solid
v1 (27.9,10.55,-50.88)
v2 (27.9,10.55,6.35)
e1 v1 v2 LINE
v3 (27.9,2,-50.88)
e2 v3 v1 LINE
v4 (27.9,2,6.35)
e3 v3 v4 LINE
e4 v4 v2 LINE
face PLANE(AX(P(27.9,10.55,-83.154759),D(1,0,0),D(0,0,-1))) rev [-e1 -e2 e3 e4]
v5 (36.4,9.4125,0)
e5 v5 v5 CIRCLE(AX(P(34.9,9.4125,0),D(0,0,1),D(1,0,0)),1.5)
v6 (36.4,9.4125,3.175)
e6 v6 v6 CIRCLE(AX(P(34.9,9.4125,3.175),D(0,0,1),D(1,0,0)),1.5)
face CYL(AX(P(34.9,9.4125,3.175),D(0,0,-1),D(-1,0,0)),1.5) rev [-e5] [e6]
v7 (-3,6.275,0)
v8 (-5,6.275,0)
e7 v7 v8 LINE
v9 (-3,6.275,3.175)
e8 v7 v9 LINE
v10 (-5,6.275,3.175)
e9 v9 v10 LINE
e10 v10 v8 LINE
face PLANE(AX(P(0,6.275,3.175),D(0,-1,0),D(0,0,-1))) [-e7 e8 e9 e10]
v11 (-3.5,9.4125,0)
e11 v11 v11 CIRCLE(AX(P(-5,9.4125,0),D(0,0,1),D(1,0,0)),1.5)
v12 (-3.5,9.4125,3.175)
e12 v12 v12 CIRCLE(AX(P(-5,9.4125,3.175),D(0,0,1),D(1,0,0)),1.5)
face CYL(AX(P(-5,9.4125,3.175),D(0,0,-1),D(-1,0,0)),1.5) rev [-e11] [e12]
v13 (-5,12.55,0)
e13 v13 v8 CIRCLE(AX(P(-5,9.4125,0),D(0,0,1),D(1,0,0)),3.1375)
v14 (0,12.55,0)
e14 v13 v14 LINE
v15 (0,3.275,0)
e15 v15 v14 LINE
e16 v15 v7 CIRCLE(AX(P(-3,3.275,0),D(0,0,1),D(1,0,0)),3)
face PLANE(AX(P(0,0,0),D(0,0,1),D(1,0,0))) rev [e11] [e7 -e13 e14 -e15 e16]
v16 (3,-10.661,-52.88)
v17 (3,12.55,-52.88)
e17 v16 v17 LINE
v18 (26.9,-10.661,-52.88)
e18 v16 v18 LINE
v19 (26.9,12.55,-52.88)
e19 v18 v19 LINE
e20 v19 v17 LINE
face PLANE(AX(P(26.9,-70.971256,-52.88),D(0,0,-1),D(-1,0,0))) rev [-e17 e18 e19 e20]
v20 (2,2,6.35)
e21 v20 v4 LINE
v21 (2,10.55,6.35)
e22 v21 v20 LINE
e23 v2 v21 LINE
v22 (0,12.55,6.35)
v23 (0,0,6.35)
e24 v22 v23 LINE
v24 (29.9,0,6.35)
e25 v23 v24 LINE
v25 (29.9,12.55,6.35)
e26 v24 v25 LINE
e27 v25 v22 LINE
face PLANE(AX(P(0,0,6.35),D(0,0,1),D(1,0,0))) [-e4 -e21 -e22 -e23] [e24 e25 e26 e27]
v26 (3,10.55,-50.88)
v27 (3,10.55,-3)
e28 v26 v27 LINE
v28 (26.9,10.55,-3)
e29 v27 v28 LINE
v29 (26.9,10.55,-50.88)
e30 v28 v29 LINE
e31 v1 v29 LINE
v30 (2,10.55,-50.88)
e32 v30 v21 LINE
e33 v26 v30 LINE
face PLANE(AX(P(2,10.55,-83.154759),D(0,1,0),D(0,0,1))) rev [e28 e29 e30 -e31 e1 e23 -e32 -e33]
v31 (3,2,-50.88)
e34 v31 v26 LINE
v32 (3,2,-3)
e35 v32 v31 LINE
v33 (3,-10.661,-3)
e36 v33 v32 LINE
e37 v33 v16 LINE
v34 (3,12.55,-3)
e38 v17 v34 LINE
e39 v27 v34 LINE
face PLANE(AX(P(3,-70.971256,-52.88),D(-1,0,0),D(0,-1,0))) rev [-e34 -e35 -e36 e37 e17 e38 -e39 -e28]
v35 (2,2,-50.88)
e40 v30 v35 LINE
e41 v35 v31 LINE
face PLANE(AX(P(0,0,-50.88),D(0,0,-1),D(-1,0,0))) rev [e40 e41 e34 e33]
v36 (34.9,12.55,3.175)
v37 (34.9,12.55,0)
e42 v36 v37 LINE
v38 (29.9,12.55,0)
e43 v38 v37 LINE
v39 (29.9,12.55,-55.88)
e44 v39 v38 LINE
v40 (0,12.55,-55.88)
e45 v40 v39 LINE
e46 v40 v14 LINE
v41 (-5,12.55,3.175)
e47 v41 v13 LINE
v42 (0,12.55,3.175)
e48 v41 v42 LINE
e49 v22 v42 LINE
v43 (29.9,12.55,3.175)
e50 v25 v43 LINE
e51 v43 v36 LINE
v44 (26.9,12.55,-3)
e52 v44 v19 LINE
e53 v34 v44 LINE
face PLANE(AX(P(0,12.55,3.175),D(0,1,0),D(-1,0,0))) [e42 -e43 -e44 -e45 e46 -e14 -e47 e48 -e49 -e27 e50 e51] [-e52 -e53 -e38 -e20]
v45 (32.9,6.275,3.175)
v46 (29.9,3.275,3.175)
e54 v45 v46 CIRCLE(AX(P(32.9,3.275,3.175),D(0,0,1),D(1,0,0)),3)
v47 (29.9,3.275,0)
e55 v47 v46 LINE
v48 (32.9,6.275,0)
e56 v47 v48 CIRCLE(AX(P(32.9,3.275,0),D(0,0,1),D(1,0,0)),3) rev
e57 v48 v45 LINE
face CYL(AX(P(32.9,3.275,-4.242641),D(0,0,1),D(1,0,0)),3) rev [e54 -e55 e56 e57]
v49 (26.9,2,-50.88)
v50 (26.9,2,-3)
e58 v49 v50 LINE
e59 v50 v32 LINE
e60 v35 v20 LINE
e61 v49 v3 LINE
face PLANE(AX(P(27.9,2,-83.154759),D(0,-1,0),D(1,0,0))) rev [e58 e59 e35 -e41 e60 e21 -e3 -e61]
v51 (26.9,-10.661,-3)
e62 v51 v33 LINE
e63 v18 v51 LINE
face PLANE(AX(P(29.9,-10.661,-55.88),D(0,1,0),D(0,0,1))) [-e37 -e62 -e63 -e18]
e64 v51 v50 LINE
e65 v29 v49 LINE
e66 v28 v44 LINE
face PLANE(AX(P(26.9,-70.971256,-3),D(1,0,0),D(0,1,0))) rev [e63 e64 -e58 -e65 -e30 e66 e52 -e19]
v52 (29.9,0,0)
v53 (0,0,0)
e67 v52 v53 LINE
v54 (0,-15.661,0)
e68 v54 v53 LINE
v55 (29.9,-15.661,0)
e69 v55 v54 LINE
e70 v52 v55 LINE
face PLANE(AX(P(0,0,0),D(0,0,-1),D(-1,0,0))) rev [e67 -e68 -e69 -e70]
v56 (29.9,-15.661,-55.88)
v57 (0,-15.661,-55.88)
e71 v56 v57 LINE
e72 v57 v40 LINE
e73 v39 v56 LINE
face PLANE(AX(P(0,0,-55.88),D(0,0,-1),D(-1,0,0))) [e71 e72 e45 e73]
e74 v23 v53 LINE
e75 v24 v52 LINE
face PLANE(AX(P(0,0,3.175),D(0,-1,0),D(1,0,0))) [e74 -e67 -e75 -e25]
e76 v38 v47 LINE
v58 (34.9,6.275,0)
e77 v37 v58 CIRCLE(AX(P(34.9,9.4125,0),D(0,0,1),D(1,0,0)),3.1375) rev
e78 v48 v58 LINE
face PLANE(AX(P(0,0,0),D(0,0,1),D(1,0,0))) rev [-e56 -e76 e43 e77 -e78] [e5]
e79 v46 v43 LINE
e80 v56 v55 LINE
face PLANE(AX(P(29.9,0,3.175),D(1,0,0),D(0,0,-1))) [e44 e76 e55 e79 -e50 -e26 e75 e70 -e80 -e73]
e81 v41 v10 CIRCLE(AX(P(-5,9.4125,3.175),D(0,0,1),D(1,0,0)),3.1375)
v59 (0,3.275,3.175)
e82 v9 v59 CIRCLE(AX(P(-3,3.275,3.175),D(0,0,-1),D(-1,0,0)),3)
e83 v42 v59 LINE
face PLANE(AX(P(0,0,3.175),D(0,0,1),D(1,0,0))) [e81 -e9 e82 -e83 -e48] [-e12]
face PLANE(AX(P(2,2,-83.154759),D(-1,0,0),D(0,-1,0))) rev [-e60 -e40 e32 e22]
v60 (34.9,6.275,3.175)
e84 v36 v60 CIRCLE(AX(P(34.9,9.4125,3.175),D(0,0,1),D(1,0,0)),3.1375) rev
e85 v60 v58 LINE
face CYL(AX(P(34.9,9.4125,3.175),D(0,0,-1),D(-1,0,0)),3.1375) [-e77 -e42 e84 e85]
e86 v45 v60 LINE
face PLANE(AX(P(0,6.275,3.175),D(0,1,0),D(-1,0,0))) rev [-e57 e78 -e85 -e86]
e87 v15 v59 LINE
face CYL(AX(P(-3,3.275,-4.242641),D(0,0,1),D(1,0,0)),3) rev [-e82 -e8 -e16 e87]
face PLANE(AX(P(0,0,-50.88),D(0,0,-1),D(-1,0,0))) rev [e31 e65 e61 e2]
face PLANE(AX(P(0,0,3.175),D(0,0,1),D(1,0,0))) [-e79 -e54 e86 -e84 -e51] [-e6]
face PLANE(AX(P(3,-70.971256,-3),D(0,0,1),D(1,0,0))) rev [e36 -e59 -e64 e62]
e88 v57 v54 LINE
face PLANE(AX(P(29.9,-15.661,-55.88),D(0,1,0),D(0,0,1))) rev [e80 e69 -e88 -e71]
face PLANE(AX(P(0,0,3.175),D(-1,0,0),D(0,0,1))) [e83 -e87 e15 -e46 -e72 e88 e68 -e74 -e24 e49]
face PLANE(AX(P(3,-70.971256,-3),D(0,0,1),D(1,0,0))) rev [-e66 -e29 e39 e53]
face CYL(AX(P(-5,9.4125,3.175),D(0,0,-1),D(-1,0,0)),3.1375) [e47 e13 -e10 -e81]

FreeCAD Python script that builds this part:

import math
import FreeCAD as App
import Part
import Sketcher


def add_polygon(sketch, points):
    """Adds a closed chain of lines whose ends are joined by coincident constraints."""
    first, n = sketch.GeometryCount, len(points)
    for a, b in zip(points, points[1:] + points[:1]):
        sketch.addGeometry(Part.LineSegment(App.Vector(*a, 0), App.Vector(*b, 0)), False)
    for i in range(n):
        sketch.addConstraint(Sketcher.Constraint("Coincident", first + i, 2, first + (i + 1) % n, 1))

doc = App.newDocument("Part")
params = doc.addObject("Spreadsheet::Sheet", "Params")
for row, (alias, value) in enumerate([
    ("sketch1_diameter", "3 mm"),
    ("sketch1_width", "5 mm"),
    ("sketch1_width2", "29.9 mm"),
    ("pad1_length", "3.175 mm"),
    ("sketch2_width", "29.9 mm"),
    ("sketch2_height", "12.55 mm"),
    ("pad2_length", "3.175 mm"),
    ("sketch3_width", "29.9 mm"),
    ("pad3_length", "55.88 mm"),
    ("sketch4_radius", "3 mm"),
    ("pad4_length", "3.175 mm"),
    ("sketch5_width", "25.9 mm"),
    ("sketch5_height", "8.55 mm"),
    ("pocket1_length", "57.23 mm"),
    ("sketch6_width", "23.9 mm"),
    ("sketch6_height", "49.88 mm"),
    ("pocket2_length", "23.211 mm"),
], start=1):
    params.set(f"A{row}", alias)
    params.set(f"B{row}", "=" + value)
    params.setAlias(f"B{row}", alias)

body = doc.addObject("PartDesign::Body", "Body")

sketch1 = body.newObject("Sketcher::SketchObject", "Sketch")
sketch1.AttachmentSupport = (doc.getObject("XY_Plane"), [""])
sketch1.MapMode = "FlatFace"
sketch1.addGeometry(Part.LineSegment(App.Vector(0, 6.3, 0), App.Vector(0, 0, 0)), False)
sketch1.addGeometry(Part.LineSegment(App.Vector(0, 0, 0), App.Vector(29.9, 0, 0)), False)
sketch1.addGeometry(Part.LineSegment(App.Vector(29.9, 0, 0), App.Vector(29.9, 6.3, 0)), False)
sketch1.addGeometry(Part.LineSegment(App.Vector(29.9, 6.3, 0), App.Vector(34.9, 6.3, 0)), False)
sketch1.addGeometry(Part.ArcOfCircle(Part.Circle(App.Vector(34.9, 9.4, 0), App.Vector(0, 0, 1), 3.1), math.radians(-90), math.radians(90)), False)
sketch1.addGeometry(Part.LineSegment(App.Vector(34.9, 12.6, 0), App.Vector(-5, 12.6, 0)), False)
sketch1.addGeometry(Part.ArcOfCircle(Part.Circle(App.Vector(-5, 9.4, 0), App.Vector(0, 0, 1), 3.1), math.radians(90), math.radians(270)), False)
sketch1.addGeometry(Part.LineSegment(App.Vector(-5, 6.3, 0), App.Vector(0, 6.3, 0)), False)
sketch1.addGeometry(Part.Circle(App.Vector(-5, 9.4, 0), App.Vector(0, 0, 1), 1.5), False)
sketch1.addGeometry(Part.Circle(App.Vector(34.9, 9.4, 0), App.Vector(0, 0, 1), 1.5), False)
sketch1.addConstraint(Sketcher.Constraint("Coincident", 0, 2, 1, 1))
sketch1.addConstraint(Sketcher.Constraint("Coincident", 1, 2, 2, 1))
sketch1.addConstraint(Sketcher.Constraint("Coincident", 2, 2, 3, 1))
sketch1.addConstraint(Sketcher.Constraint("Tangent", 3, 2, 4, 1))
sketch1.addConstraint(Sketcher.Constraint("Tangent", 4, 2, 5, 1))
sketch1.addConstraint(Sketcher.Constraint("Tangent", 5, 2, 6, 1))
sketch1.addConstraint(Sketcher.Constraint("Tangent", 6, 2, 7, 1))
sketch1.addConstraint(Sketcher.Constraint("Coincident", 7, 2, 0, 1))
sketch1.addConstraint(Sketcher.Constraint("Vertical", 0))
sketch1.addConstraint(Sketcher.Constraint("Horizontal", 1))
sketch1.addConstraint(Sketcher.Constraint("Vertical", 2))
sketch1.addConstraint(Sketcher.Constraint("Horizontal", 3))
sketch1.addConstraint(Sketcher.Constraint("Horizontal", 5))
sketch1.addConstraint(Sketcher.Constraint("Horizontal", 7))
sketch1.addConstraint(Sketcher.Constraint("Coincident", 0, 2, -1, 1))
sketch1.addConstraint(Sketcher.Constraint("Coincident", 8, 3, 6, 3))
sketch1.addConstraint(Sketcher.Constraint("Coincident", 9, 3, 4, 3))
sketch1.addConstraint(Sketcher.Constraint("Equal", 4, 6))
sketch1.addConstraint(Sketcher.Constraint("Equal", 8, 9))
sketch1.addConstraint(Sketcher.Constraint("Equal", 3, 7))
sketch1.addConstraint(Sketcher.Constraint("Diameter", 8, 3.0))
sketch1.addConstraint(Sketcher.Constraint("DistanceX", 3, 1, 3, 2, 5.0))
sketch1.addConstraint(Sketcher.Constraint("DistanceX", 1, 1, 1, 2, 29.9))
sketch1.addConstraint(Sketcher.Constraint("Radius", 4, 3.1375))
sketch1.addConstraint(Sketcher.Constraint("DistanceY", 0, 2, 0, 1, 6.275))
sketch1.setExpression("Constraints[20]", "Params.sketch1_diameter")
sketch1.setExpression("Constraints[21]", "Params.sketch1_width")
sketch1.setExpression("Constraints[22]", "Params.sketch1_width2")
pad1 = body.newObject("PartDesign::Pad", "Pad")
pad1.Profile = sketch1
pad1.setExpression("Length", "Params.pad1_length")

sketch2 = body.newObject("Sketcher::SketchObject", "Sketch001")
sketch2.AttachmentSupport = (doc.getObject("XY_Plane"), [""])
sketch2.MapMode = "FlatFace"
sketch2.AttachmentOffset = App.Placement(App.Vector(0, 0, 3.175), App.Rotation())
add_polygon(sketch2, [(0, 13), (0, 0), (30, 0), (30, 13)])
sketch2.addConstraint(Sketcher.Constraint("Vertical", 0))
sketch2.addConstraint(Sketcher.Constraint("Horizontal", 1))
sketch2.addConstraint(Sketcher.Constraint("Vertical", 2))
sketch2.addConstraint(Sketcher.Constraint("Horizontal", 3))
sketch2.addConstraint(Sketcher.Constraint("Coincident", 0, 2, -1, 1))
sketch2.addConstraint(Sketcher.Constraint("DistanceX", 1, 1, 1, 2, 29.9))
sketch2.addConstraint(Sketcher.Constraint("DistanceY", 0, 2, 0, 1, 12.55))
sketch2.setExpression("Constraints[9]", "Params.sketch2_width")
sketch2.setExpression("Constraints[10]", "Params.sketch2_height")
pad2 = body.newObject("PartDesign::Pad", "Pad001")
pad2.Profile = sketch2
pad2.setExpression("Length", "Params.pad2_length")

sketch3 = body.newObject("Sketcher::SketchObject", "Sketch002")
sketch3.AttachmentSupport = (doc.getObject("XY_Plane"), [""])
sketch3.MapMode = "FlatFace"
add_polygon(sketch3, [(30, -16), (0, -16), (0, 13), (30, 13)])
sketch3.addConstraint(Sketcher.Constraint("Horizontal", 0))
sketch3.addConstraint(Sketcher.Constraint("Vertical", 1))
sketch3.addConstraint(Sketcher.Constraint("Horizontal", 2))
sketch3.addConstraint(Sketcher.Constraint("Vertical", 3))
sketch3.addConstraint(Sketcher.Constraint("PointOnObject", 0, 2, -2))
sketch3.addConstraint(Sketcher.Constraint("DistanceX", 0, 2, 0, 1, 29.9))
sketch3.addConstraint(Sketcher.Constraint("DistanceY", 1, 1, 1, 2, 28.211))
sketch3.addConstraint(Sketcher.Constraint("DistanceY", -1, 1, 1, 2, 12.55))
sketch3.setExpression("Constraints[9]", "Params.sketch3_width")
pad3 = body.newObject("PartDesign::Pad", "Pad002")
pad3.Profile = sketch3
pad3.setExpression("Length", "Params.pad3_length")
pad3.Reversed = True

sketch4 = body.newObject("Sketcher::SketchObject", "Sketch003")
sketch4.AttachmentSupport = (doc.getObject("XY_Plane"), [""])
sketch4.MapMode = "FlatFace"
sketch4.AttachmentOffset = App.Placement(App.Vector(0, 0, 3.175), App.Rotation())
sketch4.addGeometry(Part.LineSegment(App.Vector(32.9, 6.3, 0), App.Vector(29.9, 6.3, 0)), False)
sketch4.addGeometry(Part.LineSegment(App.Vector(29.9, 6.3, 0), App.Vector(29.9, 3.3, 0)), False)
sketch4.addGeometry(Part.ArcOfCircle(Part.Circle(App.Vector(32.9, 3.3, 0), App.Vector(0, 0, 1), 3), math.radians(90), math.radians(180)), False)
sketch4.addGeometry(Part.LineSegment(App.Vector(0, 6.3, 0), App.Vector(-3, 6.3, 0)), False)
sketch4.addGeometry(Part.ArcOfCircle(Part.Circle(App.Vector(-3, 3.3, 0), App.Vector(0, 0, 1), 3), math.radians(0), math.radians(90)), False)
sketch4.addGeometry(Part.LineSegment(App.Vector(0, 3.3, 0), App.Vector(0, 6.3, 0)), False)
sketch4.addConstraint(Sketcher.Constraint("Coincident", 0, 2, 1, 1))
sketch4.addConstraint(Sketcher.Constraint("Tangent", 1, 2, 2, 2))
sketch4.addConstraint(Sketcher.Constraint("Tangent", 2, 1, 0, 1))
sketch4.addConstraint(Sketcher.Constraint("Tangent", 3, 2, 4, 2))
sketch4.addConstraint(Sketcher.Constraint("Tangent", 4, 1, 5, 1))
sketch4.addConstraint(Sketcher.Constraint("Coincident", 5, 2, 3, 1))
sketch4.addConstraint(Sketcher.Constraint("Horizontal", 0))
sketch4.addConstraint(Sketcher.Constraint("Vertical", 1))
sketch4.addConstraint(Sketcher.Constraint("Horizontal", 3))
sketch4.addConstraint(Sketcher.Constraint("Vertical", 5))
sketch4.addConstraint(Sketcher.Constraint("Equal", 2, 4))
sketch4.addConstraint(Sketcher.Constraint("PointOnObject", 4, 1, -2))
sketch4.addConstraint(Sketcher.Constraint("Horizontal", 2, 3, 4, 3))
sketch4.addConstraint(Sketcher.Constraint("Radius", 2, 3.0))
sketch4.addConstraint(Sketcher.Constraint("DistanceX", -1, 1, 2, 3, 32.9))
sketch4.addConstraint(Sketcher.Constraint("DistanceY", -1, 1, 2, 3, 3.275))
sketch4.setExpression("Constraints[13]", "Params.sketch4_radius")
pad4 = body.newObject("PartDesign::Pad", "Pad003")
pad4.Profile = sketch4
pad4.setExpression("Length", "Params.pad4_length")
pad4.Reversed = True

sketch5 = body.newObject("Sketcher::SketchObject", "Sketch004")
sketch5.AttachmentSupport = (doc.getObject("XY_Plane"), [""])
sketch5.MapMode = "FlatFace"
sketch5.AttachmentOffset = App.Placement(App.Vector(0, 0, 6.35), App.Rotation())
add_polygon(sketch5, [(2, 11), (2, 2), (28, 2), (28, 11)])
sketch5.addConstraint(Sketcher.Constraint("Vertical", 0))
sketch5.addConstraint(Sketcher.Constraint("Horizontal", 1))
sketch5.addConstraint(Sketcher.Constraint("Vertical", 2))
sketch5.addConstraint(Sketcher.Constraint("Horizontal", 3))
sketch5.addConstraint(Sketcher.Constraint("DistanceX", 1, 1, 1, 2, 25.9))
sketch5.addConstraint(Sketcher.Constraint("DistanceX", -1, 1, 0, 2, 2.0))
sketch5.addConstraint(Sketcher.Constraint("DistanceY", -1, 1, 0, 2, 2.0))
sketch5.addConstraint(Sketcher.Constraint("DistanceY", 0, 2, 0, 1, 8.55))
sketch5.setExpression("Constraints[8]", "Params.sketch5_width")
sketch5.setExpression("Constraints[11]", "Params.sketch5_height")
pocket1 = body.newObject("PartDesign::Pocket", "Pocket")
pocket1.Profile = sketch5
pocket1.setExpression("Length", "Params.pocket1_length")

sketch6 = body.newObject("Sketcher::SketchObject", "Sketch005")
sketch6.AttachmentSupport = (doc.getObject("XZ_Plane"), [""])
sketch6.MapMode = "FlatFace"
sketch6.AttachmentOffset = App.Placement(App.Vector(0, 0, -12.55), App.Rotation())
add_polygon(sketch6, [(3, -53), (3, -3), (27, -3), (27, -53)])
sketch6.addConstraint(Sketcher.Constraint("Vertical", 0))
sketch6.addConstraint(Sketcher.Constraint("Horizontal", 1))
sketch6.addConstraint(Sketcher.Constraint("Vertical", 2))
sketch6.addConstraint(Sketcher.Constraint("Horizontal", 3))
sketch6.addConstraint(Sketcher.Constraint("DistanceX", 1, 1, 1, 2, 23.9))
sketch6.addConstraint(Sketcher.Constraint("DistanceX", -1, 1, 0, 2, 3.0))
sketch6.addConstraint(Sketcher.Constraint("DistanceY", 0, 2, -1, 1, 3.0))
sketch6.addConstraint(Sketcher.Constraint("DistanceY", 0, 1, 0, 2, 49.88))
sketch6.setExpression("Constraints[8]", "Params.sketch6_width")
sketch6.setExpression("Constraints[11]", "Params.sketch6_height")
pocket2 = body.newObject("PartDesign::Pocket", "Pocket001")
pocket2.Profile = sketch6
pocket2.setExpression("Length", "Params.pocket2_length")
pocket2.Reversed = True

doc.recompute()
